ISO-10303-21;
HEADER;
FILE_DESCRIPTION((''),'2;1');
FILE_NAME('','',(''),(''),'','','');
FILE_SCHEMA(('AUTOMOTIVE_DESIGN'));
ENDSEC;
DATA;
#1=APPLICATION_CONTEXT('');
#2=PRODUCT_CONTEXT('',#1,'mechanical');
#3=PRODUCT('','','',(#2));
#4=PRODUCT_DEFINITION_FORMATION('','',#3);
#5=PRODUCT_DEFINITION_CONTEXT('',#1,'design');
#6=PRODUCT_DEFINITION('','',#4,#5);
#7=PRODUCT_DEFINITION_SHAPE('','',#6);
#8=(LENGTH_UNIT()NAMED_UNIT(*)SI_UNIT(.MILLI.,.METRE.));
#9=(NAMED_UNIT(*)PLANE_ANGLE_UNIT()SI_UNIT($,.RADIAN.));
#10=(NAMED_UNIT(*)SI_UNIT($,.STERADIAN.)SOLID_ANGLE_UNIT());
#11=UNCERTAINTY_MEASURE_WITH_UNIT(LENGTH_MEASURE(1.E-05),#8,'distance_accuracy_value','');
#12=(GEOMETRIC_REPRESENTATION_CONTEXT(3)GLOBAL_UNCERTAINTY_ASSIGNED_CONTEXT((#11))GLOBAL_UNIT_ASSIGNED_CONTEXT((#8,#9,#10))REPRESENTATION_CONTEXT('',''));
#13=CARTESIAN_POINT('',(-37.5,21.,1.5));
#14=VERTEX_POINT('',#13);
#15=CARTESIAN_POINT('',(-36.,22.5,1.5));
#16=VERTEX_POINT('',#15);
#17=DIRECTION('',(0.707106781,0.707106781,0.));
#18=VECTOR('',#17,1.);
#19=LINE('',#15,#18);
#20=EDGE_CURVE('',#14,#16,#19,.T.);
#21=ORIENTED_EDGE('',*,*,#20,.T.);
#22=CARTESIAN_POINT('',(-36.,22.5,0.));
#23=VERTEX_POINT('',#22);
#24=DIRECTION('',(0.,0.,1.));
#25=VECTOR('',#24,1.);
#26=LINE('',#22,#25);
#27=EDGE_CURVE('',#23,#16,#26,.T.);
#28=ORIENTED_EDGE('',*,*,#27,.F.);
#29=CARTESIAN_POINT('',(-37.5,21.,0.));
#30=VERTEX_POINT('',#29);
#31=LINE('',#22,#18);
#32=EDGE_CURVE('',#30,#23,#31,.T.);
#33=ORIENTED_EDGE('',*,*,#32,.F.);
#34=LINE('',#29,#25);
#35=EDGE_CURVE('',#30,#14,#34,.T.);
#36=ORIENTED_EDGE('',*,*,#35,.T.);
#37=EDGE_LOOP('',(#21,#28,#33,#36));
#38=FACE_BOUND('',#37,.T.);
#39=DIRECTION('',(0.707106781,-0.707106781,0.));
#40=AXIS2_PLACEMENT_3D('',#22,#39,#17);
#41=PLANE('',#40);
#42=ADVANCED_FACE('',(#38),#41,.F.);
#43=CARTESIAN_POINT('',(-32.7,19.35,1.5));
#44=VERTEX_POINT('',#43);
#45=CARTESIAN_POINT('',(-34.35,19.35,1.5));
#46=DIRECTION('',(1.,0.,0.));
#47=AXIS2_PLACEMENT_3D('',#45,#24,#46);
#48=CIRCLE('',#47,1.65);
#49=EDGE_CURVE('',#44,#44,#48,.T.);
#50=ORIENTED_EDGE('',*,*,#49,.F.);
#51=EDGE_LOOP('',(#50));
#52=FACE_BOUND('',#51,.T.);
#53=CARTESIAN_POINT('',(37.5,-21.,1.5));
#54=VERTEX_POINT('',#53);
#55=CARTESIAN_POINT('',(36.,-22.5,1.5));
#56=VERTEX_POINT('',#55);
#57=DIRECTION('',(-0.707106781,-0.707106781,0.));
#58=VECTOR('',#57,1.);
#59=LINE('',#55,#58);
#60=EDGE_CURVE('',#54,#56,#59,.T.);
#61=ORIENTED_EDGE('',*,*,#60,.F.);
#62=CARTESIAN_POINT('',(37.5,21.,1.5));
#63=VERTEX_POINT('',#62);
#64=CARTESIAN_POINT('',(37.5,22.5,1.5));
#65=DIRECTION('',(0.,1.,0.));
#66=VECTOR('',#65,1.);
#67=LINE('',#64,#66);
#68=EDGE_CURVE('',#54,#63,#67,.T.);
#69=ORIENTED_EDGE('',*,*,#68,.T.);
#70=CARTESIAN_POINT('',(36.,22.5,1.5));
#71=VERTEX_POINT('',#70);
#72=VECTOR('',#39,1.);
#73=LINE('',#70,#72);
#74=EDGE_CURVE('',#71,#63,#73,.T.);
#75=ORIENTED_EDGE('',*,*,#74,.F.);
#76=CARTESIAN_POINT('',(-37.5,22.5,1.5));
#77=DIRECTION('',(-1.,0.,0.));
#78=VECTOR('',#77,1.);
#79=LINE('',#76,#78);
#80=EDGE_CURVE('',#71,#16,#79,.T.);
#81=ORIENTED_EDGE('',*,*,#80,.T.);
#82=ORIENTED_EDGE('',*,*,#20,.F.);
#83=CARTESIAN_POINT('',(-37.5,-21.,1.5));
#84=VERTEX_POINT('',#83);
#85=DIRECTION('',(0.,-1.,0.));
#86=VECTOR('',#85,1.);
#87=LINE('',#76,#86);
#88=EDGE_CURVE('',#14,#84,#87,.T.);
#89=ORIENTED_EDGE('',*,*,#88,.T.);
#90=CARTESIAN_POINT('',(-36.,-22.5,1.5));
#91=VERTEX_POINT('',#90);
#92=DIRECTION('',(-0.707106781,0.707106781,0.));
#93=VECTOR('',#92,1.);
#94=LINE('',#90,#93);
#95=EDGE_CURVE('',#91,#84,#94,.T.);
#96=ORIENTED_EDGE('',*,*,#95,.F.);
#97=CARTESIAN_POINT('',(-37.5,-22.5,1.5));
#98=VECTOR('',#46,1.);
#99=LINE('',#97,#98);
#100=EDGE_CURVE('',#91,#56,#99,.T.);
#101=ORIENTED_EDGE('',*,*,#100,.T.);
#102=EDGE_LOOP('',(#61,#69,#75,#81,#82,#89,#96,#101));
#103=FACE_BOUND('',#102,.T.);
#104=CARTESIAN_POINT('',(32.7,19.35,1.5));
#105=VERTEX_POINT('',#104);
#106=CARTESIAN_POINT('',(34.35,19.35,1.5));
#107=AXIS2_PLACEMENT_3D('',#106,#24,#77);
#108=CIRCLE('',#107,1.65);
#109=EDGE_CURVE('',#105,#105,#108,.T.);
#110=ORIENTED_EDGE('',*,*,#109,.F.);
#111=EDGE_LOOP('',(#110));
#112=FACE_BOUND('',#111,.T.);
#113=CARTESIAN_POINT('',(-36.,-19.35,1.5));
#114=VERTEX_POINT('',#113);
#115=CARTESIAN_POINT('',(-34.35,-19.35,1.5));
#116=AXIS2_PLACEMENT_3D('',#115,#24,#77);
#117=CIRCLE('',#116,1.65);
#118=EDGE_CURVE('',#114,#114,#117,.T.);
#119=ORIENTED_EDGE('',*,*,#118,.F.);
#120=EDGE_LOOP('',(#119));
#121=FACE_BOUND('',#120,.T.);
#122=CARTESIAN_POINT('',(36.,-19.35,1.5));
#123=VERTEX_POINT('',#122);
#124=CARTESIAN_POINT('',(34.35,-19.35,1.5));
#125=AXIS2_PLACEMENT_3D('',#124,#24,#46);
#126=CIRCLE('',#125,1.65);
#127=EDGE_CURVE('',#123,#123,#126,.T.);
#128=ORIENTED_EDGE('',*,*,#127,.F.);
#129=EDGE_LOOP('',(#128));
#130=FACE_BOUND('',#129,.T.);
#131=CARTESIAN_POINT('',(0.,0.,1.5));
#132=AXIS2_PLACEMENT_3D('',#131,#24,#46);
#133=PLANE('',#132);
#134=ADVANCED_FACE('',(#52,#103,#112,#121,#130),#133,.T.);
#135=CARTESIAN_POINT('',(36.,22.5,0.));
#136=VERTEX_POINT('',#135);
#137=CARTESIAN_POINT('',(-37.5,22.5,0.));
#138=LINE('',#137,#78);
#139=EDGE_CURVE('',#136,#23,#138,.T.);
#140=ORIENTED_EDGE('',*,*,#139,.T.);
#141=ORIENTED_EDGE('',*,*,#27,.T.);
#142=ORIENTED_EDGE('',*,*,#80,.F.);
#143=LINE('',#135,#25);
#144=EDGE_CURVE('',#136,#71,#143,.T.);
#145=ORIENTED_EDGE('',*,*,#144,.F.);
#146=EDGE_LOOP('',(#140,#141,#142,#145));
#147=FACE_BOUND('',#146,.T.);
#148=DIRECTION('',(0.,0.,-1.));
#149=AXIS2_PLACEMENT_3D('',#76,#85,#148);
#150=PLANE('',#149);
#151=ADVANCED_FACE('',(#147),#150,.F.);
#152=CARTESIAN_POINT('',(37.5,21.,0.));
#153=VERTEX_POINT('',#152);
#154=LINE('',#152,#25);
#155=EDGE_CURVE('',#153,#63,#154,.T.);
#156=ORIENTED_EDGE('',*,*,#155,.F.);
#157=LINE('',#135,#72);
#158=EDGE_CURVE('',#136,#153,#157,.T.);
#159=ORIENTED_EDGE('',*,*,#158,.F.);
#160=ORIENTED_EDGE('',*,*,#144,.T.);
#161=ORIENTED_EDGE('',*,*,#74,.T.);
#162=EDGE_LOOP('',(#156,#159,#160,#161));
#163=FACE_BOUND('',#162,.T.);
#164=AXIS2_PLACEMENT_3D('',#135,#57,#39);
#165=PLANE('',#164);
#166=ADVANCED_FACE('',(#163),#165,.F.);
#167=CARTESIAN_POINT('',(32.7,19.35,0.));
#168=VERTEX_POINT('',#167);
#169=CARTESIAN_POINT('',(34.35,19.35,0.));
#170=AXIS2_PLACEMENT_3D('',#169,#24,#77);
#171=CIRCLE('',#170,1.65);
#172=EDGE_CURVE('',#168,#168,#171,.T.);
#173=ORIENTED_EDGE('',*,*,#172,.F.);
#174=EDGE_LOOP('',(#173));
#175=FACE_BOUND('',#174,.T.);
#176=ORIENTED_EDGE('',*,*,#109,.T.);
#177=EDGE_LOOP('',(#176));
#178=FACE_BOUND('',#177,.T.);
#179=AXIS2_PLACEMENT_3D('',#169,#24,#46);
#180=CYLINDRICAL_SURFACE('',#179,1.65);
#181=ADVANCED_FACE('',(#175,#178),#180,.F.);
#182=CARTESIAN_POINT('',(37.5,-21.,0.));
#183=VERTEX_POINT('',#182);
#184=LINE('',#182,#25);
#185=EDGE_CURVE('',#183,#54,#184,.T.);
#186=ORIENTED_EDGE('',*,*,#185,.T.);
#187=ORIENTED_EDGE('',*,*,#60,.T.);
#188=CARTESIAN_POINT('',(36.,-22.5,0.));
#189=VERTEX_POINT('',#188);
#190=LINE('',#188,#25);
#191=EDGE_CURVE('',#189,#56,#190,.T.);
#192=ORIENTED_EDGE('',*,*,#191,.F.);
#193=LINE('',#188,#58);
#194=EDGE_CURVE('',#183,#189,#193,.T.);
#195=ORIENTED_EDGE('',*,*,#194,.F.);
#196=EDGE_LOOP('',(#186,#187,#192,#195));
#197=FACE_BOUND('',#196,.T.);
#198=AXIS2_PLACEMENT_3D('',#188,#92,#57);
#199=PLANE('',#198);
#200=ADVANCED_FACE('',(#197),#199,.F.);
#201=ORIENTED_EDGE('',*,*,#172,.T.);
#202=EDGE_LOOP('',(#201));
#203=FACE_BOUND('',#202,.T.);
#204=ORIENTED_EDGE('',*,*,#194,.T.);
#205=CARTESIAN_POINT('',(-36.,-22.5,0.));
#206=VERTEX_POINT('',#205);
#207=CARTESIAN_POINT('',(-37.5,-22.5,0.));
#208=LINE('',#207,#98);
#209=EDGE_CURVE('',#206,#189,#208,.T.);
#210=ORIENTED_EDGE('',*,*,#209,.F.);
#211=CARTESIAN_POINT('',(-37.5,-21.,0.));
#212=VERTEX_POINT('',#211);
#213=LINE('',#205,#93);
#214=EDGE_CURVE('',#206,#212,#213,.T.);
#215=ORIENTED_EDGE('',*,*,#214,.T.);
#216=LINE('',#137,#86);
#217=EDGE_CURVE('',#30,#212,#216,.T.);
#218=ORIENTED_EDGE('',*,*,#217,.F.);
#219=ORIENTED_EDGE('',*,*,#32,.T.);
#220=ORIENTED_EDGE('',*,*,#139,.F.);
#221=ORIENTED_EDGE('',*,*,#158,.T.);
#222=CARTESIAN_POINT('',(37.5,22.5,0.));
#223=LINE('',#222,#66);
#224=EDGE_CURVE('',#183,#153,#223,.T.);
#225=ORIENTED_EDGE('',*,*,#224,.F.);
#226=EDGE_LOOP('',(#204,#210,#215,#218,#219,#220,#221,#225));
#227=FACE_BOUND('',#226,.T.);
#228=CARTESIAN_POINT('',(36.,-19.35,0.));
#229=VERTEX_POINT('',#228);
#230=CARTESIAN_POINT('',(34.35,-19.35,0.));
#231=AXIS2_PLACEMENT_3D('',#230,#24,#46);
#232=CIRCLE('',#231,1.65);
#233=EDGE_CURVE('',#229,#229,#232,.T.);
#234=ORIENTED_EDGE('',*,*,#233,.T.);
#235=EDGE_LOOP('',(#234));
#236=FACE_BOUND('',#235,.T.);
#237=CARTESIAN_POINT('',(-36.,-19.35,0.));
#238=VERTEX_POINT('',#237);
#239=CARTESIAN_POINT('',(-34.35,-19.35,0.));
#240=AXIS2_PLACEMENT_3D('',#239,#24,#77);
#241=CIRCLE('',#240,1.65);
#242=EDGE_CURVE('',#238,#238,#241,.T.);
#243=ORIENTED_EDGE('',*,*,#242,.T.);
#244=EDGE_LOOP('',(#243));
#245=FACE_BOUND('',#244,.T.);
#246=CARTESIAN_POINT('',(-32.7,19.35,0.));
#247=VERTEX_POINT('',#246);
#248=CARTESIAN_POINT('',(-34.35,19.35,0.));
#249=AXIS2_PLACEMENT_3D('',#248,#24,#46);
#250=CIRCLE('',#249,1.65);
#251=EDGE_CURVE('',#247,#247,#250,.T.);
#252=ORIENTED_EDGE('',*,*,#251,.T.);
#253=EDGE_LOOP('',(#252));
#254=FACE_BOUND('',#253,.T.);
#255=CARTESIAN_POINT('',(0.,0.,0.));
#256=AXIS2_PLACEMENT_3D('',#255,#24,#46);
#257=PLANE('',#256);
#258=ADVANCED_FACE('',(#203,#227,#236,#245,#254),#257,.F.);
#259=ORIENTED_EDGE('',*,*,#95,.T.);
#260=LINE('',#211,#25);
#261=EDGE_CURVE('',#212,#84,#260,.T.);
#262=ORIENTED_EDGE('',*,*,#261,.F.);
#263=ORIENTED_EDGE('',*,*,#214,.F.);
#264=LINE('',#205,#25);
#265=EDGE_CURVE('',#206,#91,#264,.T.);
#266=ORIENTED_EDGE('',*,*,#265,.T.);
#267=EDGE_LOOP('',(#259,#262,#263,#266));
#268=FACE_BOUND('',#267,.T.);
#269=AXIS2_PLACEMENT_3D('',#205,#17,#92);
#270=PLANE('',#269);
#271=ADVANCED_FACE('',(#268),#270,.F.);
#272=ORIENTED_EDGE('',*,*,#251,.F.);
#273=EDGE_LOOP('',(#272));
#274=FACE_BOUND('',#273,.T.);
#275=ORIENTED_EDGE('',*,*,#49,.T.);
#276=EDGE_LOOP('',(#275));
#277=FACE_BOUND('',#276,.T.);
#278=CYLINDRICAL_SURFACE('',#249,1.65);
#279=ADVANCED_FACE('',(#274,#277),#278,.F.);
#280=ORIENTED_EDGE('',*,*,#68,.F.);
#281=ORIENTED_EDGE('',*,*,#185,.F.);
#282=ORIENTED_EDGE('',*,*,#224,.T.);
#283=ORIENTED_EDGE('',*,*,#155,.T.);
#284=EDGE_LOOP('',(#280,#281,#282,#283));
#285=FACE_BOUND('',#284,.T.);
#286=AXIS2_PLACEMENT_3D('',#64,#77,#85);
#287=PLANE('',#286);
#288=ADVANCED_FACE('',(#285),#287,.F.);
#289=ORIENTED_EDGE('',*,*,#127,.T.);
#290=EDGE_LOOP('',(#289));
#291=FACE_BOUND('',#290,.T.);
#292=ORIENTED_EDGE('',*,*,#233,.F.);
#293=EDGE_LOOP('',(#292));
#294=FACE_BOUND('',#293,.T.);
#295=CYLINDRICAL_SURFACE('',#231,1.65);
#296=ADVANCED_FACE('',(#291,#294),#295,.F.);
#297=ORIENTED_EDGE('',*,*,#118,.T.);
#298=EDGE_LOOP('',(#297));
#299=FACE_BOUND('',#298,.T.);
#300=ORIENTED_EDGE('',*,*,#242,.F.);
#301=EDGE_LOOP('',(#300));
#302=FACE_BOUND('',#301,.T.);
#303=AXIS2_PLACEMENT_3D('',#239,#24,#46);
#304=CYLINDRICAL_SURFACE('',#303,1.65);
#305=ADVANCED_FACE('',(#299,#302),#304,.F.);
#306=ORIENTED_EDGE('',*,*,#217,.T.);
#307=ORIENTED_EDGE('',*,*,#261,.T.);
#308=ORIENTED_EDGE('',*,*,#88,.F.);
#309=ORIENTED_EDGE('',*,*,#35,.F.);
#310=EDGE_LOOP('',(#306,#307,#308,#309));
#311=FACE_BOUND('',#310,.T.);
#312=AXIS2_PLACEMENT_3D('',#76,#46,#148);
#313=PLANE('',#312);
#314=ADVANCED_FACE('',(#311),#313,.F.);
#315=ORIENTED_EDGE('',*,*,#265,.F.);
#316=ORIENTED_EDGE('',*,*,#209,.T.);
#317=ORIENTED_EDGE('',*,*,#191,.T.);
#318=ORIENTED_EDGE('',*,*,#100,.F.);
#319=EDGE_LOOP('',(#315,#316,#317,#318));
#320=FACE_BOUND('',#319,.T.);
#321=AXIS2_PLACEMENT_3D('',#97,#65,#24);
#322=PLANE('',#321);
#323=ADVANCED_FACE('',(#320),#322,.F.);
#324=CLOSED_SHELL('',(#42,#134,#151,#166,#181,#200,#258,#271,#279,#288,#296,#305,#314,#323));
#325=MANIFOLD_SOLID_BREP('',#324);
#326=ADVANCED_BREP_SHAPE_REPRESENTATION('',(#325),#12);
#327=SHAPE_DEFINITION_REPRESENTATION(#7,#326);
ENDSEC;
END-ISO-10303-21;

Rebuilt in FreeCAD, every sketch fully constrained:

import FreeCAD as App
import Part
import Sketcher

V = App.Vector

doc = App.newDocument("Part")
body = doc.addObject("PartDesign::Body", "Body")

sketch1 = doc.addObject("Sketcher::SketchObject", "Sketch")
body.addObject(sketch1)
sketch1.AttachmentSupport = (doc.XY_Plane, [""])
sketch1.MapMode = "FlatFace"
sketch1.addGeometry(Part.LineSegment(V(-38, 22, 0), V(-38, -22, 0)), False)
sketch1.addGeometry(Part.LineSegment(V(-38, -22, 0), V(38, -22, 0)), False)
sketch1.addGeometry(Part.LineSegment(V(38, -22, 0), V(38, 22, 0)), False)
sketch1.addGeometry(Part.LineSegment(V(38, 22, 0), V(-38, 22, 0)), False)
sketch1.addConstraint(Sketcher.Constraint("Coincident", 0, 2, 1, 1))
sketch1.addConstraint(Sketcher.Constraint("Coincident", 1, 2, 2, 1))
sketch1.addConstraint(Sketcher.Constraint("Coincident", 2, 2, 3, 1))
sketch1.addConstraint(Sketcher.Constraint("Coincident", 3, 2, 0, 1))
sketch1.addConstraint(Sketcher.Constraint("Vertical", 0))
sketch1.addConstraint(Sketcher.Constraint("Horizontal", 1))
sketch1.addConstraint(Sketcher.Constraint("Vertical", 2))
sketch1.addConstraint(Sketcher.Constraint("Horizontal", 3))
sketch1.addConstraint(Sketcher.Constraint("Symmetric", 0, 2, 2, 2, -1, 1))
sketch1.addConstraint(Sketcher.Constraint("DistanceX", 1, 1, 1, 2, 75.0))
sketch1.addConstraint(Sketcher.Constraint("DistanceY", 0, 2, 0, 1, 45.0))
pad1 = doc.addObject("PartDesign::Pad", "Pad")
body.addObject(pad1)
pad1.Profile = sketch1
pad1.Length = 1.5

sketch2 = doc.addObject("Sketcher::SketchObject", "Sketch001")
body.addObject(sketch2)
sketch2.AttachmentSupport = (doc.XY_Plane, [""])
sketch2.MapMode = "FlatFace"
sketch2.AttachmentOffset = App.Placement(V(0, 0, 1.5), App.Rotation())
sketch2.addGeometry(Part.Circle(V(-34.4, 19.4, 0), V(0, 0, 1), 1.6), False)
sketch2.addGeometry(Part.Circle(V(34.4, 19.4, 0), V(0, 0, 1), 1.6), False)
sketch2.addGeometry(Part.Circle(V(34.4, -19.4, 0), V(0, 0, 1), 1.6), False)
sketch2.addGeometry(Part.Circle(V(-34.4, -19.4, 0), V(0, 0, 1), 1.6), False)
sketch2.addGeometry(Part.LineSegment(V(-36, 22.5, 0), V(-37.5, 22.5, 0)), False)
sketch2.addGeometry(Part.LineSegment(V(-37.5, 22.5, 0), V(-37.5, 21, 0)), False)
sketch2.addGeometry(Part.LineSegment(V(-37.5, 21, 0), V(-36, 22.5, 0)), False)
sketch2.addGeometry(Part.LineSegment(V(37.5, 22.5, 0), V(36, 22.5, 0)), False)
sketch2.addGeometry(Part.LineSegment(V(36, 22.5, 0), V(37.5, 21, 0)), False)
sketch2.addGeometry(Part.LineSegment(V(37.5, 21, 0), V(37.5, 22.5, 0)), False)
sketch2.addGeometry(Part.LineSegment(V(37.5, -22.5, 0), V(37.5, -21, 0)), False)
sketch2.addGeometry(Part.LineSegment(V(37.5, -21, 0), V(36, -22.5, 0)), False)
sketch2.addGeometry(Part.LineSegment(V(36, -22.5, 0), V(37.5, -22.5, 0)), False)
sketch2.addGeometry(Part.LineSegment(V(-37.5, -22.5, 0), V(-36, -22.5, 0)), False)
sketch2.addGeometry(Part.LineSegment(V(-36, -22.5, 0), V(-37.5, -21, 0)), False)
sketch2.addGeometry(Part.LineSegment(V(-37.5, -21, 0), V(-37.5, -22.5, 0)), False)
sketch2.addConstraint(Sketcher.Constraint("Coincident", 4, 2, 5, 1))
sketch2.addConstraint(Sketcher.Constraint("Coincident", 5, 2, 6, 1))
sketch2.addConstraint(Sketcher.Constraint("Coincident", 6, 2, 4, 1))
sketch2.addConstraint(Sketcher.Constraint("Coincident", 7, 2, 8, 1))
sketch2.addConstraint(Sketcher.Constraint("Coincident", 8, 2, 9, 1))
sketch2.addConstraint(Sketcher.Constraint("Coincident", 9, 2, 7, 1))
sketch2.addConstraint(Sketcher.Constraint("Coincident", 10, 2, 11, 1))
sketch2.addConstraint(Sketcher.Constraint("Coincident", 11, 2, 12, 1))
sketch2.addConstraint(Sketcher.Constraint("Coincident", 12, 2, 10, 1))
sketch2.addConstraint(Sketcher.Constraint("Coincident", 13, 2, 14, 1))
sketch2.addConstraint(Sketcher.Constraint("Coincident", 14, 2, 15, 1))
sketch2.addConstraint(Sketcher.Constraint("Coincident", 15, 2, 13, 1))
sketch2.addConstraint(Sketcher.Constraint("Horizontal", 4))
sketch2.addConstraint(Sketcher.Constraint("Vertical", 5))
sketch2.addConstraint(Sketcher.Constraint("Horizontal", 7))
sketch2.addConstraint(Sketcher.Constraint("Vertical", 9))
sketch2.addConstraint(Sketcher.Constraint("Vertical", 10))
sketch2.addConstraint(Sketcher.Constraint("Horizontal", 12))
sketch2.addConstraint(Sketcher.Constraint("Horizontal", 13))
sketch2.addConstraint(Sketcher.Constraint("Vertical", 15))
sketch2.addConstraint(Sketcher.Constraint("Equal", 0, 1))
sketch2.addConstraint(Sketcher.Constraint("Equal", 1, 2))
sketch2.addConstraint(Sketcher.Constraint("Equal", 2, 3))
sketch2.addConstraint(Sketcher.Constraint("Symmetric", 0, 3, 2, 3, -1, 1))
sketch2.addConstraint(Sketcher.Constraint("Symmetric", 1, 3, 3, 3, -1, 1))
sketch2.addConstraint(Sketcher.Constraint("Symmetric", 5, 2, 10, 2, -1, 1))
sketch2.addConstraint(Sketcher.Constraint("Symmetric", 6, 2, 11, 2, -1, 1))
sketch2.addConstraint(Sketcher.Constraint("Symmetric", 7, 2, 13, 2, -1, 1))
sketch2.addConstraint(Sketcher.Constraint("Symmetric", 8, 2, 14, 2, -1, 1))
sketch2.addConstraint(Sketcher.Constraint("Symmetric", 0, 3, 1, 3, -2))
sketch2.addConstraint(Sketcher.Constraint("Symmetric", 6, 2, 7, 2, -2))
sketch2.addConstraint(Sketcher.Constraint("Symmetric", 5, 2, 8, 2, -2))
sketch2.addConstraint(Sketcher.Constraint("Perpendicular", 6, 8))
sketch2.addConstraint(Sketcher.Constraint("Diameter", 0, 3.3))
sketch2.addConstraint(Sketcher.Constraint("DistanceX", 4, 2, 4, 1, 1.5))
sketch2.addConstraint(Sketcher.Constraint("DistanceY", -1, 1, 5, 2, 21.0))
sketch2.addConstraint(Sketcher.Constraint("DistanceX", 6, 2, -1, 1, 36.0))
sketch2.addConstraint(Sketcher.Constraint("DistanceX", 0, 3, 1, 3, 68.7))
sketch2.addConstraint(Sketcher.Constraint("DistanceY", 2, 3, 1, 3, 38.7))
pocket1 = doc.addObject("PartDesign::Pocket", "Pocket")
body.addObject(pocket1)
pocket1.Profile = sketch2
pocket1.Type = "ThroughAll"

doc.recompute()
